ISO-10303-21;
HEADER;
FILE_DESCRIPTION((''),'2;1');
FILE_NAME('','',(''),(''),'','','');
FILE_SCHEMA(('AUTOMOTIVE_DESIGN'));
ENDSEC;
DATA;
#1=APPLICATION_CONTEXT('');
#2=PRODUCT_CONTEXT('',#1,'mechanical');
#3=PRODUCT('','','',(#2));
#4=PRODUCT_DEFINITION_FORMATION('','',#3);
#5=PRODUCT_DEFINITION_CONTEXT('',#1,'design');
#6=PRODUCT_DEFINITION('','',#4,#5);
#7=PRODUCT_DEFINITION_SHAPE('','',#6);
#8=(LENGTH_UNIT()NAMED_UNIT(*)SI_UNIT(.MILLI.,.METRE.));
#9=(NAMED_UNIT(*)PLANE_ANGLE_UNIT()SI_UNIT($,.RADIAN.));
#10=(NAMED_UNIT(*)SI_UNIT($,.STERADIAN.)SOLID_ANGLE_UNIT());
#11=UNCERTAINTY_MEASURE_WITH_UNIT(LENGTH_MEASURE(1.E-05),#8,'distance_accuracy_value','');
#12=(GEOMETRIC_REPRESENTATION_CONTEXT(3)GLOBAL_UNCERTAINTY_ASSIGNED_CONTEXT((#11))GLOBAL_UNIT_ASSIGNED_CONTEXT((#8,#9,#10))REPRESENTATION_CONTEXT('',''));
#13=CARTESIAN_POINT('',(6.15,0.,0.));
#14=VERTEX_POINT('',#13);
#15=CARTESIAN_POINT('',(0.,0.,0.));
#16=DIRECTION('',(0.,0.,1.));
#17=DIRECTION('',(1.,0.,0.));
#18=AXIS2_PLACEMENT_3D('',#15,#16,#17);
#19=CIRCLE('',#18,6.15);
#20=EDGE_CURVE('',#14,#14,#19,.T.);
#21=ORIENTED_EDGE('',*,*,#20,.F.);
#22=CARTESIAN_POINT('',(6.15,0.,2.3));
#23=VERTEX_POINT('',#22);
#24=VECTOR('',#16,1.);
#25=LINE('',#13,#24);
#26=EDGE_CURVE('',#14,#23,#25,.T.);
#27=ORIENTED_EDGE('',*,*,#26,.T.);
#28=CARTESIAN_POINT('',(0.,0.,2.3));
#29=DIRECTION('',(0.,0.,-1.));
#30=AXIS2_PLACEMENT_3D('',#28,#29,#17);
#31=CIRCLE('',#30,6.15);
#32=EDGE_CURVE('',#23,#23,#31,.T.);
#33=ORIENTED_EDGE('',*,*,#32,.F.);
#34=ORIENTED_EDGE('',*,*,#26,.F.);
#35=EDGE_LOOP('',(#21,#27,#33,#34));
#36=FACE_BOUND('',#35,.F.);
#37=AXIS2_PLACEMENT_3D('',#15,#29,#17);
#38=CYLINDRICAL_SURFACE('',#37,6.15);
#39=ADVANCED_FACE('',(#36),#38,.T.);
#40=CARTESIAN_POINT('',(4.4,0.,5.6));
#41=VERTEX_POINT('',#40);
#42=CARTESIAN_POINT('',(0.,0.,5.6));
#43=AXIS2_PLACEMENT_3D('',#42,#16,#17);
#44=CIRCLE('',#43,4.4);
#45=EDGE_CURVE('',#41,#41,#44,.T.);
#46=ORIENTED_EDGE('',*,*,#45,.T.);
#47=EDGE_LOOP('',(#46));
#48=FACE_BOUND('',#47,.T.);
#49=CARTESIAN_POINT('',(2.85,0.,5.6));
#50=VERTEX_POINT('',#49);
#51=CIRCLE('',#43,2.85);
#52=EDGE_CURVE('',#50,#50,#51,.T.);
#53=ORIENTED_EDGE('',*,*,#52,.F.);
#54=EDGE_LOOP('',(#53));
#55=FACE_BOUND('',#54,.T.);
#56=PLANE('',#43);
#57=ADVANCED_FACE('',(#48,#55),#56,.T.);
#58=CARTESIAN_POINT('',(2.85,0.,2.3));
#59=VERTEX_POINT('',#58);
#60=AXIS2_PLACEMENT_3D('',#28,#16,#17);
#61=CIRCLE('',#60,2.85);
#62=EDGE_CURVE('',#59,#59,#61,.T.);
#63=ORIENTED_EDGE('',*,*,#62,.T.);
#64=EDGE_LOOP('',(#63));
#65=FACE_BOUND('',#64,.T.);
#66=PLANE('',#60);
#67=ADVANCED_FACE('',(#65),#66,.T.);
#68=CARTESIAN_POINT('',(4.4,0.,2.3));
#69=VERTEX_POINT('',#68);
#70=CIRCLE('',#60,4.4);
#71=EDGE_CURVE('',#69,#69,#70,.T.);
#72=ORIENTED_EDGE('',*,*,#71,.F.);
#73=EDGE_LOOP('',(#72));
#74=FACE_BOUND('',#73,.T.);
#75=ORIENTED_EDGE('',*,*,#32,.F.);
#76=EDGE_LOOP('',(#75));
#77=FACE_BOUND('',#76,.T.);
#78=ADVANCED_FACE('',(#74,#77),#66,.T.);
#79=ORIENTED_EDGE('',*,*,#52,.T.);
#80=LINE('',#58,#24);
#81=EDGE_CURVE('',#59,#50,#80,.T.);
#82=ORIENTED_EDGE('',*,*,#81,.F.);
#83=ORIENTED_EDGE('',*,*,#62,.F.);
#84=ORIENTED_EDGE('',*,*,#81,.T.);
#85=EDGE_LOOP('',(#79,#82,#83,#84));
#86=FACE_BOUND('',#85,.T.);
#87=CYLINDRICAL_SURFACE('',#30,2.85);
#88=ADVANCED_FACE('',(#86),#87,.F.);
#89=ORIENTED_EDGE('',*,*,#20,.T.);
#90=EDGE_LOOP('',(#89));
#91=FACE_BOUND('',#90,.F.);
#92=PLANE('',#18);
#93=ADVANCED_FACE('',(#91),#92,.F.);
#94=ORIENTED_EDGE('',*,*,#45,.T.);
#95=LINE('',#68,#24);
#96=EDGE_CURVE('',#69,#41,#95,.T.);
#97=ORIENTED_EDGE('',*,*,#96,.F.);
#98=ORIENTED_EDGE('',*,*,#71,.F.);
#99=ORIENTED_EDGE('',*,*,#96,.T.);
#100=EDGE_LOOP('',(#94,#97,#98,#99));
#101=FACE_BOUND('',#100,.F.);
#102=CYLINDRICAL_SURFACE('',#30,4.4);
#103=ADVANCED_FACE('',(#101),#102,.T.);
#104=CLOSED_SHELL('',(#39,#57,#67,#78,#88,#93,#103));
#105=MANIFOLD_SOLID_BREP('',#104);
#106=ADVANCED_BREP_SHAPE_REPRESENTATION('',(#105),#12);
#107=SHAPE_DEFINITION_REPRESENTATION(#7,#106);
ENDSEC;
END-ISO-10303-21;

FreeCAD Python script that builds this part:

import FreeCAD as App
import Part
import Sketcher
from FreeCAD import Vector

doc = App.newDocument("Part")
params = doc.addObject("Spreadsheet::Sheet", "Params")
for row, (alias, value) in enumerate([
    ("sketch1_diameter", "12.3 mm"),
    ("pad1_length", "2.3 mm"),
    ("sketch2_diameter", "8.8 mm"),
    ("sketch2_diameter2", "5.7 mm"),
    ("pad2_length", "3.3 mm"),
], start=1):
    params.set(f"A{row}", alias)
    params.set(f"B{row}", "=" + value)
    params.setAlias(f"B{row}", alias)

body = doc.addObject("PartDesign::Body", "Body")

# Sketch on XY plane
sketch1 = doc.addObject("Sketcher::SketchObject", "Sketch")
body.addObject(sketch1)
sketch1.AttachmentSupport = (doc.XY_Plane, [""])
sketch1.MapMode = "FlatFace"
sketch1.addGeometry(Part.Circle(Vector(0, 0, 0), Vector(0, 0, 1), 6), False)
sketch1.addConstraint(Sketcher.Constraint("Coincident", 0, 3, -1, 1))
sketch1.addConstraint(Sketcher.Constraint("Diameter", 0, 12.3))
sketch1.setExpression("Constraints[1]", "Params.sketch1_diameter")
pad1 = doc.addObject("PartDesign::Pad", "Pad")
body.addObject(pad1)
pad1.Profile = sketch1
pad1.setExpression("Length", "Params.pad1_length")

# Sketch on XY plane
sketch2 = doc.addObject("Sketcher::SketchObject", "Sketch001")
body.addObject(sketch2)
sketch2.AttachmentSupport = (doc.XY_Plane, [""])
sketch2.MapMode = "FlatFace"
sketch2.AttachmentOffset = App.Placement(Vector(0, 0, 2.3), App.Rotation())
sketch2.addGeometry(Part.Circle(Vector(0, 0, 0), Vector(0, 0, 1), 4.4), False)
sketch2.addGeometry(Part.Circle(Vector(0, 0, 0), Vector(0, 0, 1), 2.9), False)
sketch2.addConstraint(Sketcher.Constraint("Coincident", 0, 3, -1, 1))
sketch2.addConstraint(Sketcher.Constraint("Coincident", 1, 3, -1, 1))
sketch2.addConstraint(Sketcher.Constraint("Diameter", 0, 8.8))
sketch2.addConstraint(Sketcher.Constraint("Diameter", 1, 5.7))
sketch2.setExpression("Constraints[2]", "Params.sketch2_diameter")
sketch2.setExpression("Constraints[3]", "Params.sketch2_diameter2")
pad2 = doc.addObject("PartDesign::Pad", "Pad001")
body.addObject(pad2)
pad2.Profile = sketch2
pad2.setExpression("Length", "Params.pad2_length")

doc.recompute()
